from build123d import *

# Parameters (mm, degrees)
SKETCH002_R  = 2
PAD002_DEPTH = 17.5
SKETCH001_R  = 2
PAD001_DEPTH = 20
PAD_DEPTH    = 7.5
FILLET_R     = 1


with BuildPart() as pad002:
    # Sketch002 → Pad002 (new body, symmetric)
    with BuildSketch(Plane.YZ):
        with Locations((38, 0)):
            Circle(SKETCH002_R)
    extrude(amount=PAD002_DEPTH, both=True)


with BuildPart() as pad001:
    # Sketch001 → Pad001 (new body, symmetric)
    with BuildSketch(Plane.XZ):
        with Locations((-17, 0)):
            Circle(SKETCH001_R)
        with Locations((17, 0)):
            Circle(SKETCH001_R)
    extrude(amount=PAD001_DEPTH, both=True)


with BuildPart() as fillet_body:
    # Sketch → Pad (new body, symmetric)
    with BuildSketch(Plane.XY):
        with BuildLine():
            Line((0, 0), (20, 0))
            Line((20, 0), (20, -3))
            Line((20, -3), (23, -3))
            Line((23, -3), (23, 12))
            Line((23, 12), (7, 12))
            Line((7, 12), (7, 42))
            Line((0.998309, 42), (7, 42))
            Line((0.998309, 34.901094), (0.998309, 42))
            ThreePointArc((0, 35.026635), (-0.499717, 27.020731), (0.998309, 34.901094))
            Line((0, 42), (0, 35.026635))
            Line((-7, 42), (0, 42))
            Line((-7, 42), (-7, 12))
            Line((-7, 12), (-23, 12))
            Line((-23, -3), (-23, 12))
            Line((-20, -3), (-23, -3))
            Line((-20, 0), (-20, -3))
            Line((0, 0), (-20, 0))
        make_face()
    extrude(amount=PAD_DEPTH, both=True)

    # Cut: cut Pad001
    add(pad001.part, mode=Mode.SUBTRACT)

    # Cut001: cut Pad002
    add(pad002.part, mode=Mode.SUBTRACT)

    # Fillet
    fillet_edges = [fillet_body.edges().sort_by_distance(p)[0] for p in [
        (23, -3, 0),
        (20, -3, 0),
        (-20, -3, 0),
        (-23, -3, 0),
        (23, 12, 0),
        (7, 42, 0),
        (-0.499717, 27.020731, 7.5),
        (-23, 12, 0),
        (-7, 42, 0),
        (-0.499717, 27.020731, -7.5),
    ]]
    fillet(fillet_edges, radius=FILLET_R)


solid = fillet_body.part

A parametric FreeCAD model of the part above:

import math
import FreeCAD as App
import Part
import Sketcher

V = App.Vector
Q = App.Units.Quantity


def edges_at(feature, points):
    """Names of the edges that pass closest to the given points."""
    edges = feature.Shape.Edges
    near = lambda p: min(range(len(edges)), key=lambda i: edges[i].distToShape(Part.Vertex(*p))[0])
    return sorted({f"Edge{near(p) + 1}" for p in points})

doc = App.newDocument("Part")
body = doc.addObject("PartDesign::Body", "Body")

sketch1 = doc.addObject("Sketcher::SketchObject", "Sketch")
body.addObject(sketch1)
sketch1.AttachmentSupport = (doc.YZ_Plane, [""])
sketch1.MapMode = "FlatFace"
sketch1.addGeometry(Part.Circle(V(38, 0, 0), V(0, 0, 1), 2), False)
sketch1.addConstraint([
    Sketcher.Constraint("PointOnObject", 0, 3, -1),
    Sketcher.Constraint("Diameter", 0, Q("4 mm")),
    Sketcher.Constraint("DistanceX", -1, 1, 0, 3, Q("38 mm")),
])
pad1 = doc.addObject("PartDesign::Pad", "Pad")
body.addObject(pad1)
pad1.Profile = sketch1
pad1.Length = 35
pad1.Midplane = True
body2 = doc.addObject("PartDesign::Body", "Body001")
body2.AllowCompound = True

sketch2 = doc.addObject("Sketcher::SketchObject", "Sketch001")
body2.addObject(sketch2)
sketch2.AttachmentSupport = (doc.getObject("XZ_Plane001"), [""])
sketch2.MapMode = "FlatFace"
sketch2.addGeometry([
    Part.Circle(V(-17, 0, 0), V(0, 0, 1), 2),
    Part.Circle(V(17, 0, 0), V(0, 0, 1), 2),
], False)
sketch2.addConstraint([
    Sketcher.Constraint("Equal", 0, 1),
    Sketcher.Constraint("Symmetric", 0, 3, 1, 3, -1, 1),
    Sketcher.Constraint("PointOnObject", 0, 3, -1),
    Sketcher.Constraint("Diameter", 0, Q("4 mm")),
    Sketcher.Constraint("DistanceX", 0, 3, -1, 1, Q("17 mm")),
])
pad2 = doc.addObject("PartDesign::Pad", "Pad001")
body2.addObject(pad2)
pad2.Profile = sketch2
pad2.Length = 40
pad2.Midplane = True
body3 = doc.addObject("PartDesign::Body", "Body002")

sketch3 = doc.addObject("Sketcher::SketchObject", "Sketch002")
body3.addObject(sketch3)
sketch3.AttachmentSupport = (doc.getObject("XY_Plane002"), [""])
sketch3.MapMode = "FlatFace"
sketch3.addGeometry([
    Part.LineSegment(V(20, 0, 0), V(20, -3, 0)),
    Part.LineSegment(V(20, -3, 0), V(23, -3, 0)),
    Part.LineSegment(V(23, -3, 0), V(23, 12, 0)),
    Part.LineSegment(V(23, 12, 0), V(7, 12, 0)),
    Part.LineSegment(V(7, 12, 0), V(7, 42, 0)),
    Part.LineSegment(V(7, 42, 0), V(1, 42, 0)),
    Part.LineSegment(V(1, 42, 0), V(1, 34.9, 0)),
    Part.ArcOfCircle(Part.Circle(V(0, 31, 0), V(0, 0, 1), 4), math.radians(90), math.radians(436)),
    Part.LineSegment(V(0, 35, 0), V(0, 42, 0)),
    Part.LineSegment(V(0, 42, 0), V(-7, 42, 0)),
    Part.LineSegment(V(-7, 42, 0), V(-7, 12, 0)),
    Part.LineSegment(V(-7, 12, 0), V(-23, 12, 0)),
    Part.LineSegment(V(-23, 12, 0), V(-23, -3, 0)),
    Part.LineSegment(V(-23, -3, 0), V(-20, -3, 0)),
    Part.LineSegment(V(-20, -3, 0), V(-20, 0, 0)),
    Part.LineSegment(V(-20, 0, 0), V(20, 0, 0)),
], False)
sketch3.addConstraint([
    Sketcher.Constraint("Coincident", 0, 2, 1, 1),
    Sketcher.Constraint("Coincident", 1, 2, 2, 1),
    Sketcher.Constraint("Coincident", 2, 2, 3, 1),
    Sketcher.Constraint("Coincident", 3, 2, 4, 1),
    Sketcher.Constraint("Coincident", 4, 2, 5, 1),
    Sketcher.Constraint("Coincident", 5, 2, 6, 1),
    Sketcher.Constraint("Coincident", 6, 2, 7, 2),
    Sketcher.Constraint("Coincident", 7, 1, 8, 1),
    Sketcher.Constraint("Coincident", 8, 2, 9, 1),
    Sketcher.Constraint("Coincident", 9, 2, 10, 1),
    Sketcher.Constraint("Coincident", 10, 2, 11, 1),
    Sketcher.Constraint("Coincident", 11, 2, 12, 1),
    Sketcher.Constraint("Coincident", 12, 2, 13, 1),
    Sketcher.Constraint("Coincident", 13, 2, 14, 1),
    Sketcher.Constraint("Coincident", 14, 2, 15, 1),
    Sketcher.Constraint("Coincident", 15, 2, 0, 1),
    Sketcher.Constraint("Vertical", 0),
    Sketcher.Constraint("Horizontal", 1),
    Sketcher.Constraint("Vertical", 2),
    Sketcher.Constraint("Horizontal", 3),
    Sketcher.Constraint("Vertical", 4),
    Sketcher.Constraint("Horizontal", 5),
    Sketcher.Constraint("Vertical", 6),
    Sketcher.Constraint("Vertical", 8),
    Sketcher.Constraint("Horizontal", 9),
    Sketcher.Constraint("Vertical", 10),
    Sketcher.Constraint("Horizontal", 11),
    Sketcher.Constraint("Vertical", 12),
    Sketcher.Constraint("Horizontal", 13),
    Sketcher.Constraint("Vertical", 14),
    Sketcher.Constraint("Horizontal", 15),
    Sketcher.Constraint("Symmetric", 14, 2, 15, 2, -1, 1),
    Sketcher.Constraint("Symmetric", 4, 2, 9, 2, -2),
    Sketcher.Constraint("Symmetric", 2, 2, 11, 2, -2),
    Sketcher.Constraint("PointOnObject", 7, 1, -2),
    Sketcher.Constraint("Horizontal", 1, 2, 12, 2),
    Sketcher.Constraint("Equal", 13, 0),
    Sketcher.Constraint("DistanceX", 1, 1, 1, 2, Q("3 mm")),
    Sketcher.Constraint("DistanceX", 3, 2, 3, 1, Q("16 mm")),
    Sketcher.Constraint("DistanceX", 9, 2, 9, 1, Q("7 mm")),
    Sketcher.Constraint("DistanceY", 2, 1, 2, 2, Q("15 mm")),
    Sketcher.Constraint("DistanceY", 4, 1, 4, 2, Q("30 mm")),
    Sketcher.Constraint("Radius", 7, Q("4.018654 mm")),
    Sketcher.Constraint("DistanceX", 5, 2, 5, 1, Q("6.001691 mm")),
    Sketcher.Constraint("DistanceY", 6, 2, 6, 1, Q("7.098906 mm")),
    Sketcher.Constraint("DistanceY", 8, 1, 8, 2, Q("6.973365 mm")),
])
pad3 = doc.addObject("PartDesign::Pad", "Pad002")
body3.addObject(pad3)
pad3.Profile = sketch3
pad3.Length = 15
pad3.Midplane = True
doc.recompute()

boolean = doc.addObject("PartDesign::Boolean", "Boolean")
body3.addObject(boolean)
boolean.Type = "Cut"
boolean.addObjects([body2])
doc.recompute()

boolean2 = doc.addObject("PartDesign::Boolean", "Boolean001")
body3.addObject(boolean2)
boolean2.Type = "Cut"
boolean2.addObjects([body])
doc.recompute()

fillet = doc.addObject("PartDesign::Fillet", "Fillet")
body3.addObject(fillet)
fillet.Base = (boolean2, edges_at(boolean2, [
    (23, -3, 0),
    (20, -3, 0),
    (-20, -3, 0),
    (-23, -3, 0),
    (23, 12, 0),
    (7, 42, 0),
    (-0.5, 27.021, 7.5),
    (-23, 12, 0),
    (-7, 42, 0),
    (-0.5, 27.021, -7.5),
]))
fillet.Radius = 1

doc.recompute()
